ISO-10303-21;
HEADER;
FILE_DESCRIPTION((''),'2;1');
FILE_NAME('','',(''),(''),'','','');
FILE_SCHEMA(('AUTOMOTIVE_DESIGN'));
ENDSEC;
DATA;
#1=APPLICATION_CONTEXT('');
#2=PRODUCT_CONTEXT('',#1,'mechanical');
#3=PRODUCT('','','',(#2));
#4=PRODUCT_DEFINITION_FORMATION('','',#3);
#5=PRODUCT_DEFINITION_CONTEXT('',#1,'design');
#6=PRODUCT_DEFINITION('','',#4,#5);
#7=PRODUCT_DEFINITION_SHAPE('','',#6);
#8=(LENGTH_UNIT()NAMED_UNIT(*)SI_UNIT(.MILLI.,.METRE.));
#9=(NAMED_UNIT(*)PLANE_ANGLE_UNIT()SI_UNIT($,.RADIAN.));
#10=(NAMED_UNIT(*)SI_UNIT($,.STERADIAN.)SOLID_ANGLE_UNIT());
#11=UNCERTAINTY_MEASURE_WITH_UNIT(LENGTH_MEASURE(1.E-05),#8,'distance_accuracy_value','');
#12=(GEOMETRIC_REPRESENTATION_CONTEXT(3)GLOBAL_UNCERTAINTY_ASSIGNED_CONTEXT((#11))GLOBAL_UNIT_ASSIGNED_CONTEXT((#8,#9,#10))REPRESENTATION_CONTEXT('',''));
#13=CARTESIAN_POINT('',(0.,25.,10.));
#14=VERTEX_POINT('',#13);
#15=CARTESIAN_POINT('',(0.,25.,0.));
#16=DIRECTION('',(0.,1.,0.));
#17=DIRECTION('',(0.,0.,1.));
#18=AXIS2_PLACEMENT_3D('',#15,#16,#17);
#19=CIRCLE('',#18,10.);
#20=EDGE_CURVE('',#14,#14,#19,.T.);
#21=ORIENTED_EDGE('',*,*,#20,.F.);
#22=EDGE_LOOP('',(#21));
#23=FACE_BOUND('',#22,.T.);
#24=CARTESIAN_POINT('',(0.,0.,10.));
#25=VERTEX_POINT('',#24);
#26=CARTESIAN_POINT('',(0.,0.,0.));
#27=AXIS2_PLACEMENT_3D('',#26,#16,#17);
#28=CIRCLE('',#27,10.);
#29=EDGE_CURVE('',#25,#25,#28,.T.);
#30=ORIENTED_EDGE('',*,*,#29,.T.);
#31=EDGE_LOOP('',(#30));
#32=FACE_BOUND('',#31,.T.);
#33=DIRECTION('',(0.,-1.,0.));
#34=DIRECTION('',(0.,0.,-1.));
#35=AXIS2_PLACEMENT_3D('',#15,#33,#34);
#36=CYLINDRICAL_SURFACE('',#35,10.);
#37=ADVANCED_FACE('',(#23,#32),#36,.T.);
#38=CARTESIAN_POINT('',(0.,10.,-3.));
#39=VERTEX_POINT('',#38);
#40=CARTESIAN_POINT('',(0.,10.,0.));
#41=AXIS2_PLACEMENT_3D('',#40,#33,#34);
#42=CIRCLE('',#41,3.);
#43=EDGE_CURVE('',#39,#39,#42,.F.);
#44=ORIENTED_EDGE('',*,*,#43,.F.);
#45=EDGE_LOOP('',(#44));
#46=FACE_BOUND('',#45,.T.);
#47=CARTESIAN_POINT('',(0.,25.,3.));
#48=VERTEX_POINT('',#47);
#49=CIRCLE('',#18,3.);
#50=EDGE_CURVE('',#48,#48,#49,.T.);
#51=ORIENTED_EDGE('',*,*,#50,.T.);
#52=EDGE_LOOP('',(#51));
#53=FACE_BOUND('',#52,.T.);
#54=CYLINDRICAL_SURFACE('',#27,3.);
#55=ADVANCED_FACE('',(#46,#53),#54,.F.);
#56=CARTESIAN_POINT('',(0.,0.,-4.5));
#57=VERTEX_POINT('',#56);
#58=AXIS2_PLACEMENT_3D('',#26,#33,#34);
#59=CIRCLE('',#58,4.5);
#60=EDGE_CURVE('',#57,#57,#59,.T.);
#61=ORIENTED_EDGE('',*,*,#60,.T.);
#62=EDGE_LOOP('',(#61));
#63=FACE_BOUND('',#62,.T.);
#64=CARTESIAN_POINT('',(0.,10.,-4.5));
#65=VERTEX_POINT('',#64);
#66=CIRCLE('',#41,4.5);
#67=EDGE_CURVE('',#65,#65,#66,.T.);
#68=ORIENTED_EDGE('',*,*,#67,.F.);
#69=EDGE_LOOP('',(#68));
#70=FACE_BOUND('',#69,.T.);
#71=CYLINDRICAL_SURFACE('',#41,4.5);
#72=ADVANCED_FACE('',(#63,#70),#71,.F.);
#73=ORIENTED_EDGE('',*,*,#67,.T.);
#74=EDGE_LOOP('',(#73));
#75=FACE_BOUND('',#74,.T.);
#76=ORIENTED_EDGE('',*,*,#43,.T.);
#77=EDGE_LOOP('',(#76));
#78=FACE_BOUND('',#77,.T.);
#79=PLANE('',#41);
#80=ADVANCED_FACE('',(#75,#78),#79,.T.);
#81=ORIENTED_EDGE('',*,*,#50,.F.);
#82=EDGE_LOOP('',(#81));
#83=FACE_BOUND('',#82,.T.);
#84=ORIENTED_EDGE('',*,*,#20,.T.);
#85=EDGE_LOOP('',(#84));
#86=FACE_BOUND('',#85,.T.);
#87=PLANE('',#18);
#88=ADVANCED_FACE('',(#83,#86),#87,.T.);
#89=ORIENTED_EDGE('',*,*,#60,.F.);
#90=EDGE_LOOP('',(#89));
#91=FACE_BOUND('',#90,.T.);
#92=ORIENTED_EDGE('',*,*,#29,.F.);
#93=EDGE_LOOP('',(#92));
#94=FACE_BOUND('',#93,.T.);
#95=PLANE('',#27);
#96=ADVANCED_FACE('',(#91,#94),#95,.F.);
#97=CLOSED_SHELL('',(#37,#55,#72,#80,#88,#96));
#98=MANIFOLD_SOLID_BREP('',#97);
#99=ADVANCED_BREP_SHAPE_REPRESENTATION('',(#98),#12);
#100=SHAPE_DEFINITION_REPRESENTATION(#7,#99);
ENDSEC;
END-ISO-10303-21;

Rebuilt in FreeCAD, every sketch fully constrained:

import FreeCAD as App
import Part
import Sketcher

V = App.Vector

doc = App.newDocument("Part")
body = doc.addObject("PartDesign::Body", "Body")

# Sketch on XZ plane
sketch1 = body.newObject("Sketcher::SketchObject", "Sketch")
sketch1.AttachmentSupport = (doc.getObject("XZ_Plane"), [""])
sketch1.MapMode = "FlatFace"
sketch1.addGeometry(Part.Circle(V(0, 0, 0), V(0, 0, 1), 10), False)
sketch1.addConstraint([
    Sketcher.Constraint("Coincident", 0, 3, -1, 1),
    Sketcher.Constraint("Diameter", 0, 20.0),
])
pad1 = body.newObject("PartDesign::Pad", "Pad")
pad1.Profile = sketch1
pad1.Length = 25
pad1.Reversed = True

# Sketch on XZ plane
sketch2 = body.newObject("Sketcher::SketchObject", "Sketch001")
sketch2.AttachmentSupport = (doc.getObject("XZ_Plane"), [""])
sketch2.MapMode = "FlatFace"
sketch2.AttachmentOffset = App.Placement(V(0, 0, -25), App.Rotation())
sketch2.addGeometry(Part.Circle(V(0, 0, 0), V(0, 0, 1), 3), False)
sketch2.addConstraint([
    Sketcher.Constraint("Coincident", 0, 3, -1, 1),
    Sketcher.Constraint("Diameter", 0, 6.0),
])
pocket1 = body.newObject("PartDesign::Pocket", "Pocket")
pocket1.Profile = sketch2
pocket1.Type = "ThroughAll"
pocket1.Reversed = True

# Sketch on XZ plane
sketch3 = body.newObject("Sketcher::SketchObject", "Sketch002")
sketch3.AttachmentSupport = (doc.getObject("XZ_Plane"), [""])
sketch3.MapMode = "FlatFace"
sketch3.addGeometry(Part.Circle(V(0, 0, 0), V(0, 0, 1), 4.5), False)
sketch3.addConstraint([
    Sketcher.Constraint("Coincident", 0, 3, -1, 1),
    Sketcher.Constraint("Diameter", 0, 9.0),
])
pocket2 = body.newObject("PartDesign::Pocket", "Pocket001")
pocket2.Profile = sketch3
pocket2.Length = 10

doc.recompute()
